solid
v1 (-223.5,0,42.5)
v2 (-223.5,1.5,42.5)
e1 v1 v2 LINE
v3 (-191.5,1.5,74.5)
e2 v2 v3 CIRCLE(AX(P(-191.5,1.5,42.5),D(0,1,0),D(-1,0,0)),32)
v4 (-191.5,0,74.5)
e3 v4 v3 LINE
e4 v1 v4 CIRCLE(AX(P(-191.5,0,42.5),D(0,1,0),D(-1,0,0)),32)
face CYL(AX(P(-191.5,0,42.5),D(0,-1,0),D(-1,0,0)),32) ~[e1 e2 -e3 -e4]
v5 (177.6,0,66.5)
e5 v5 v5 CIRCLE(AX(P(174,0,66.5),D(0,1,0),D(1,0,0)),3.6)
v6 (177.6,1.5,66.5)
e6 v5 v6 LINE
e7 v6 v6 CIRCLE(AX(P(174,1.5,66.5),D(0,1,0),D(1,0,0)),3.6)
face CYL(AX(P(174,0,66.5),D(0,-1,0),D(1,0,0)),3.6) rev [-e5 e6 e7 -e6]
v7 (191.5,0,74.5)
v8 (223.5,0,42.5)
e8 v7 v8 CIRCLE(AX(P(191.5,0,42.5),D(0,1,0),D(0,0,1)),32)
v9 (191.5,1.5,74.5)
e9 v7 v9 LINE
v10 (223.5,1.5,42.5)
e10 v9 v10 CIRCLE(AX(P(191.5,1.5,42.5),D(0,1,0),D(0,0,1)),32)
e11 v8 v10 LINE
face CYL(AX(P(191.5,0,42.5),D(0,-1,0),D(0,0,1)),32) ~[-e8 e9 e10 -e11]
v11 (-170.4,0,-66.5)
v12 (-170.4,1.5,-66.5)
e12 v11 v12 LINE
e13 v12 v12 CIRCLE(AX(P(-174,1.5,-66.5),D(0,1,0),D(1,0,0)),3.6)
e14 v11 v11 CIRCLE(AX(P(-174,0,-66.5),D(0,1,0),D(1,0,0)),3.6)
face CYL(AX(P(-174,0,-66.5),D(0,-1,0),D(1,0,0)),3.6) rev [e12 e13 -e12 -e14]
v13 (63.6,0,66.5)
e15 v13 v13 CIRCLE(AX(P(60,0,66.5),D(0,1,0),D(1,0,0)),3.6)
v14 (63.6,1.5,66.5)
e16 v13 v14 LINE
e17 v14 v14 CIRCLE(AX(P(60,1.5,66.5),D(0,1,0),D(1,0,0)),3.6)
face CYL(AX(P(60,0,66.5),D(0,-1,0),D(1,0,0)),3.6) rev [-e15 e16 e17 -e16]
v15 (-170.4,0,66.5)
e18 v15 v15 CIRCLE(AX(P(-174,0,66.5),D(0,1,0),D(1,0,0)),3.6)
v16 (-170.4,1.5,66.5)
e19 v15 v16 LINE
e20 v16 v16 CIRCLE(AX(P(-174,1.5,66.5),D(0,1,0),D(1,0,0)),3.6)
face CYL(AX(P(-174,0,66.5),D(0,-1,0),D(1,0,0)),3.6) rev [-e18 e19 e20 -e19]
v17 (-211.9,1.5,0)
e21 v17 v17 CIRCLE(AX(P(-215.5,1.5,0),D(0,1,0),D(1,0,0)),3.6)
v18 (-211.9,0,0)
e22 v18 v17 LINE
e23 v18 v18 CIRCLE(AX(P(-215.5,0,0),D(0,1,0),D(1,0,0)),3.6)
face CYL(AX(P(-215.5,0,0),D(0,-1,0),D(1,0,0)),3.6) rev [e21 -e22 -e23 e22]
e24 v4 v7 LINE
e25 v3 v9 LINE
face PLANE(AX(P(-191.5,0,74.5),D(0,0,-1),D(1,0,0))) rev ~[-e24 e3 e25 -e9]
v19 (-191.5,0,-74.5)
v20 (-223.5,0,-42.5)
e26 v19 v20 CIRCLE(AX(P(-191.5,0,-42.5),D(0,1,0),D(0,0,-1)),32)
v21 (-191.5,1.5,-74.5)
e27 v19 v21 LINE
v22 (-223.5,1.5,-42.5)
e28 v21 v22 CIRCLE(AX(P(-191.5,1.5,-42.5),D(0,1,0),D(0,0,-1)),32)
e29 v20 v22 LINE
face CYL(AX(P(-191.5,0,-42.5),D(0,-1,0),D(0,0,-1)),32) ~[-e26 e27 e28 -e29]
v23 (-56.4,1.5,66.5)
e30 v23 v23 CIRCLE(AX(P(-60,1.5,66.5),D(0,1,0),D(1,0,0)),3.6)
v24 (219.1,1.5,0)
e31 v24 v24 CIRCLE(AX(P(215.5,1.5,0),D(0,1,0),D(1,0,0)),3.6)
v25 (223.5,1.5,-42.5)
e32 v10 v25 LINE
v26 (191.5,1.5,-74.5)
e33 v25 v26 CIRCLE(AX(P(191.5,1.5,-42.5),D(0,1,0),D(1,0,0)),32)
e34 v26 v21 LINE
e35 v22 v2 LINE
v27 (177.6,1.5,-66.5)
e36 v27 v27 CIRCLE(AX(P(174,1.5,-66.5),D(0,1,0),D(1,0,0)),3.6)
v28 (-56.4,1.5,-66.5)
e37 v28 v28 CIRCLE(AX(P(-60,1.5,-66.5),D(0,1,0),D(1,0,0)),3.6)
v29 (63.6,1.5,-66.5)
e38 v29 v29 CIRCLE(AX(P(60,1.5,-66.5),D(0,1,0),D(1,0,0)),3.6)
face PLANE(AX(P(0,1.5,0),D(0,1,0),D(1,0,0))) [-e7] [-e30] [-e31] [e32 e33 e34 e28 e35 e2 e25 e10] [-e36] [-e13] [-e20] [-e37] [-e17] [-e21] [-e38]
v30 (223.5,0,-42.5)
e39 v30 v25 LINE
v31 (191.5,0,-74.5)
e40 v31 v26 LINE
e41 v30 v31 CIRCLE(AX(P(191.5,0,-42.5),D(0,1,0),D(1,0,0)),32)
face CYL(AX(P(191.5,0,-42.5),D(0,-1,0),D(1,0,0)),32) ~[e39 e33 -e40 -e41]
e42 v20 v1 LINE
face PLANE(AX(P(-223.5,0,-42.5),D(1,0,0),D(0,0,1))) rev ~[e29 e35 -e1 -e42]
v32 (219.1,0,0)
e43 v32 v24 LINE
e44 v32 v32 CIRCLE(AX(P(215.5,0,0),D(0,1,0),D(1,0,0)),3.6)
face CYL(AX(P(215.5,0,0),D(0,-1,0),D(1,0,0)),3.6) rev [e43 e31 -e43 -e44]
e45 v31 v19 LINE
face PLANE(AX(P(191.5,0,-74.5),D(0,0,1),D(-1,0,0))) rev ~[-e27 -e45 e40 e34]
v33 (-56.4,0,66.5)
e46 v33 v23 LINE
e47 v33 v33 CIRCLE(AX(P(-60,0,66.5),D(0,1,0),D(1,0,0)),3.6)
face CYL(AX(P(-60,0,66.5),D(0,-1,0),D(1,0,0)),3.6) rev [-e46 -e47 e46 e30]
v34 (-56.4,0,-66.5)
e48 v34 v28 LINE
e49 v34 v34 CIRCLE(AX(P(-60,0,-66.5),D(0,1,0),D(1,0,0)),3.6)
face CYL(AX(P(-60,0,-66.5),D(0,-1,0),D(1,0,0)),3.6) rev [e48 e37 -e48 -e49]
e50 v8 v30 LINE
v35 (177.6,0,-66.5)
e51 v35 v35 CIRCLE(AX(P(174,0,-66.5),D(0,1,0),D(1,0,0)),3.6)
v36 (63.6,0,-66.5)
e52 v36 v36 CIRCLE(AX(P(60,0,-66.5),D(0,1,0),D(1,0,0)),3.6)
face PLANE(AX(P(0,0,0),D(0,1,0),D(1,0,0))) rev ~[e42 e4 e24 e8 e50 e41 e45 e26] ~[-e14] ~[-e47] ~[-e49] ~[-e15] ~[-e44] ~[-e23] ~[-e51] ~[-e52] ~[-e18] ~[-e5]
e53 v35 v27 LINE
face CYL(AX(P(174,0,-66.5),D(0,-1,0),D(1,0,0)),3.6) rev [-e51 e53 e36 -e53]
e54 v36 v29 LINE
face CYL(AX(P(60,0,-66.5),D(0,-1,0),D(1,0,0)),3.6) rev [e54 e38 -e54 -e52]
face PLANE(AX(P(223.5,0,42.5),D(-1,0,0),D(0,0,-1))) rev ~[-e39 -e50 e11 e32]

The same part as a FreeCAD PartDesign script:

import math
import FreeCAD as App
import Part
import Sketcher

V = App.Vector
Q = App.Units.Quantity

doc = App.newDocument("Part")
body = doc.addObject("PartDesign::Body", "Body")

# Sketch on XZ plane
sketch1 = body.newObject("Sketcher::SketchObject", "Sketch")
sketch1.AttachmentSupport = (doc.getObject("XZ_Plane"), [""])
sketch1.MapMode = "FlatFace"
sketch1.addGeometry([
    Part.LineSegment(V(-223.5, -42.5, 0), V(-223.5, 42.5, 0)),  # 0
    Part.ArcOfCircle(Part.Circle(V(-191.5, 42.5, 0), V(0, 0, 1), 32), math.radians(90), math.radians(180)),  # 1
    Part.LineSegment(V(-191.5, 74.5, 0), V(191.5, 74.5, 0)),  # 2
    Part.ArcOfCircle(Part.Circle(V(191.5, 42.5, 0), V(0, 0, 1), 32), math.radians(0), math.radians(90)),  # 3
    Part.LineSegment(V(223.5, 42.5, 0), V(223.5, -42.5, 0)),  # 4
    Part.ArcOfCircle(Part.Circle(V(191.5, -42.5, 0), V(0, 0, 1), 32), math.radians(-90), math.radians(0)),  # 5
    Part.LineSegment(V(191.5, -74.5, 0), V(-191.5, -74.5, 0)),  # 6
    Part.ArcOfCircle(Part.Circle(V(-191.5, -42.5, 0), V(0, 0, 1), 32), math.radians(180), math.radians(270)),  # 7
    Part.Circle(V(-174, 66.5, 0), V(0, 0, 1), 3.6),  # 8
    Part.Circle(V(-60, 66.5, 0), V(0, 0, 1), 3.6),  # 9
    Part.Circle(V(60, 66.5, 0), V(0, 0, 1), 3.6),  # 10
    Part.Circle(V(174, 66.5, 0), V(0, 0, 1), 3.6),  # 11
    Part.Circle(V(-215.5, 0, 0), V(0, 0, 1), 3.6),  # 12
    Part.Circle(V(-174, -66.5, 0), V(0, 0, 1), 3.6),  # 13
    Part.Circle(V(-60, -66.5, 0), V(0, 0, 1), 3.6),  # 14
    Part.Circle(V(215.5, 0, 0), V(0, 0, 1), 3.6),  # 15
    Part.Circle(V(60, -66.5, 0), V(0, 0, 1), 3.6),  # 16
    Part.Circle(V(174, -66.5, 0), V(0, 0, 1), 3.6),  # 17
], False)
sketch1.addConstraint([
    Sketcher.Constraint("Tangent", 0, 2, 1, 2),
    Sketcher.Constraint("Tangent", 1, 1, 2, 1),
    Sketcher.Constraint("Tangent", 2, 2, 3, 2),
    Sketcher.Constraint("Tangent", 3, 1, 4, 1),
    Sketcher.Constraint("Tangent", 4, 2, 5, 2),
    Sketcher.Constraint("Tangent", 5, 1, 6, 1),
    Sketcher.Constraint("Tangent", 6, 2, 7, 2),
    Sketcher.Constraint("Tangent", 7, 1, 0, 1),
    Sketcher.Constraint("Vertical", 0),
    Sketcher.Constraint("Horizontal", 2),
    Sketcher.Constraint("Vertical", 4),
    Sketcher.Constraint("Horizontal", 6),
    Sketcher.Constraint("Equal", 1, 3),
    Sketcher.Constraint("Equal", 3, 5),
    Sketcher.Constraint("Equal", 5, 7),
    Sketcher.Constraint("Equal", 8, 9),
    Sketcher.Constraint("Equal", 9, 10),
    Sketcher.Constraint("Equal", 10, 11),
    Sketcher.Constraint("Equal", 11, 12),
    Sketcher.Constraint("Equal", 12, 13),
    Sketcher.Constraint("Equal", 13, 14),
    Sketcher.Constraint("Equal", 14, 15),
    Sketcher.Constraint("Equal", 15, 16),
    Sketcher.Constraint("Equal", 16, 17),
    Sketcher.Constraint("Symmetric", 1, 3, 5, 3, -1, 1),
    Sketcher.Constraint("Symmetric", 11, 3, 13, 3, -1, 1),
    Sketcher.Constraint("Symmetric", 10, 3, 14, 3, -1, 1),
    Sketcher.Constraint("Symmetric", 12, 3, 15, 3, -1, 1),
    Sketcher.Constraint("Symmetric", 9, 3, 16, 3, -1, 1),
    Sketcher.Constraint("Symmetric", 8, 3, 17, 3, -1, 1),
    Sketcher.Constraint("Symmetric", 9, 3, 10, 3, -2),
    Sketcher.Constraint("Symmetric", 8, 3, 11, 3, -2),
    Sketcher.Constraint("PointOnObject", 12, 3, -1),
    Sketcher.Constraint("Horizontal", 8, 3, 9, 3),
    Sketcher.Constraint("Radius", 1, Q("32 mm")),
    Sketcher.Constraint("Diameter", 8, Q("7.2 mm")),
    Sketcher.Constraint("DistanceX", 2, 1, 2, 2, Q("383 mm")),
    Sketcher.Constraint("DistanceY", 0, 1, 0, 2, Q("85 mm")),
    Sketcher.Constraint("DistanceX", 8, 3, -1, 1, Q("174 mm")),
    Sketcher.Constraint("DistanceX", 9, 3, -1, 1, Q("60 mm")),
    Sketcher.Constraint("DistanceY", 1, 3, 8, 3, Q("24 mm")),
    Sketcher.Constraint("DistanceX", 12, 3, 1, 3, Q("24 mm")),
])
pad1 = body.newObject("PartDesign::Pad", "Pad")
pad1.Profile = sketch1
pad1.Length = 1.5
pad1.Reversed = True

doc.recompute()
